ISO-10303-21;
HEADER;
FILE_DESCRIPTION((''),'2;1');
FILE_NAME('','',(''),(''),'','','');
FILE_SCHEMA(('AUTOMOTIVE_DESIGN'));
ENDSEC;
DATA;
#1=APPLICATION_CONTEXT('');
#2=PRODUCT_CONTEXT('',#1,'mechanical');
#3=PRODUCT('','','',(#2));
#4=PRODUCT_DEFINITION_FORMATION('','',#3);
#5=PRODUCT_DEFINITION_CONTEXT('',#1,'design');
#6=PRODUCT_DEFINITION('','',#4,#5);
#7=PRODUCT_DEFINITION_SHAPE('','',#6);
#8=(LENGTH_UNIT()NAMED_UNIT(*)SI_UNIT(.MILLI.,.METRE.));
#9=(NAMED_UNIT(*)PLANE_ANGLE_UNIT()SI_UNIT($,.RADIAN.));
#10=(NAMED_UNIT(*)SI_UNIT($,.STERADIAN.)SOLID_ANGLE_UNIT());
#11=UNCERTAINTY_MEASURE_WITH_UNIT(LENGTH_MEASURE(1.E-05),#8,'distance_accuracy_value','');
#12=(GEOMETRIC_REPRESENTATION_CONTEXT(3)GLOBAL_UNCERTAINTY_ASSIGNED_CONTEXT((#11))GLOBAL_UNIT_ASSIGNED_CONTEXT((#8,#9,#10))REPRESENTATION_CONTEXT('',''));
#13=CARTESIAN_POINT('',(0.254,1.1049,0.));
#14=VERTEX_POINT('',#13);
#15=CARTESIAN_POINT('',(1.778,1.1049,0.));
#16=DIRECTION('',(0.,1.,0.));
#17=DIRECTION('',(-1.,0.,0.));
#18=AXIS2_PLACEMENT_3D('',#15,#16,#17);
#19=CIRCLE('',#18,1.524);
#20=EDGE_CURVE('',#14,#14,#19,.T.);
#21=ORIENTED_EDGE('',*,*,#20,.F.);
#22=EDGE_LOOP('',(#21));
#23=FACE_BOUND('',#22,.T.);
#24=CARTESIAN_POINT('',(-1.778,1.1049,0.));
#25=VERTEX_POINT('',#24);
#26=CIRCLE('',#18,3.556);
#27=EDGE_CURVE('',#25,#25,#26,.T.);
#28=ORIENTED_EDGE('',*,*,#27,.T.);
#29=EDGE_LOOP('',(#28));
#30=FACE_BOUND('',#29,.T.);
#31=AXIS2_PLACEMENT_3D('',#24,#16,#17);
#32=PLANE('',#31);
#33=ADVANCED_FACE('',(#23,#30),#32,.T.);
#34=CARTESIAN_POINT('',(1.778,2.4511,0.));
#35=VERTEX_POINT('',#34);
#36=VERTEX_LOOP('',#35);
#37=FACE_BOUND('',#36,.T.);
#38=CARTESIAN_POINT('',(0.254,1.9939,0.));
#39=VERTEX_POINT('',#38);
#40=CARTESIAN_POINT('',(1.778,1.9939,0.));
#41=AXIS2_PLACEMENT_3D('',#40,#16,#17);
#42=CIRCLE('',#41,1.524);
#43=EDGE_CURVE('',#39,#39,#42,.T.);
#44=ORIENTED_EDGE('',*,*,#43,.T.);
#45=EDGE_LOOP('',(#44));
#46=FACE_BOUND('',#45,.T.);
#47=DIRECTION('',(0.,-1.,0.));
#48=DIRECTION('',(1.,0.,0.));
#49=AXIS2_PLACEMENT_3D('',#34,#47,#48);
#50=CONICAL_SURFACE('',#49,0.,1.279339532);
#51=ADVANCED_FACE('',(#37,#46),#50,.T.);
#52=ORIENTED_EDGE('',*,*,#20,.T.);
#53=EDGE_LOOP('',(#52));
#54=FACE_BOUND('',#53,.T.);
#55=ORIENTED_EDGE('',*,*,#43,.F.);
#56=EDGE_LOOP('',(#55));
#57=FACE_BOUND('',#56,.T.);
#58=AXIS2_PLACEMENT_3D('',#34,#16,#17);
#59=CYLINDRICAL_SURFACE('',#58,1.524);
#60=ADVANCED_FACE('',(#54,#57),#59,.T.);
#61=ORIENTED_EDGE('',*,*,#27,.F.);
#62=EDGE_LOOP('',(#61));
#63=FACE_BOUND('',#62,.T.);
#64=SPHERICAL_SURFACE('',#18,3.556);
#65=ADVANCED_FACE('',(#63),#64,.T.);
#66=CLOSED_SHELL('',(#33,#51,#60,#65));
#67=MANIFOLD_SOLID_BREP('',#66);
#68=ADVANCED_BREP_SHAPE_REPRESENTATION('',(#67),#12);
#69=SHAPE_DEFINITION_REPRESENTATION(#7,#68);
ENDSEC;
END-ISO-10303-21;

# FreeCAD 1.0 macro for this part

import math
import FreeCAD as App
import Part
import Sketcher

V = App.Vector
Q = App.Units.Quantity

doc = App.newDocument("Part")
body = doc.addObject("PartDesign::Body", "Body")

# Sketch on XY plane
sketch1 = body.newObject("Sketcher::SketchObject", "Sketch")
sketch1.AttachmentSupport = (doc.getObject("XY_Plane"), [""])
sketch1.MapMode = "FlatFace"
sketch1.addGeometry([
    Part.LineSegment(V(0.3, 1.1, 0), V(-1.8, 1.1, 0)),  # 0
    Part.ArcOfCircle(Part.Circle(V(1.8, 1.1, 0), V(0, 0, 1), 3.6), math.radians(180), math.radians(270)),  # 1
    Part.LineSegment(V(1.8, -2.5, 0), V(1.8, 2.5, 0)),  # 2
    Part.LineSegment(V(1.8, 2.5, 0), V(0.3, 2, 0)),  # 3
    Part.LineSegment(V(0.3, 2, 0), V(0.3, 1.1, 0)),  # 4
], False)
sketch1.addGeometry(Part.LineSegment(V(1.8, 2.5, 0), V(1.8, -2.5, 0)), True)  # axis
sketch1.addConstraint([
    Sketcher.Constraint("Coincident", 0, 2, 1, 1),
    Sketcher.Constraint("Coincident", 1, 2, 2, 1),
    Sketcher.Constraint("Coincident", 2, 2, 3, 1),
    Sketcher.Constraint("Coincident", 3, 2, 4, 1),
    Sketcher.Constraint("Coincident", 4, 2, 0, 1),
    Sketcher.Constraint("Horizontal", 0),
    Sketcher.Constraint("Vertical", 2),
    Sketcher.Constraint("Vertical", 4),
    Sketcher.Constraint("Vertical", 5),
    Sketcher.Constraint("Coincident", 5, 1, 2, 2),
    Sketcher.Constraint("Horizontal", 1, 3, 0, 2),
    Sketcher.Constraint("Equal", 2, 5),
    Sketcher.Constraint("Radius", 1, Q("0.14 in")),
    Sketcher.Constraint("DistanceX", 0, 2, 0, 1, Q("0.08 in")),
    Sketcher.Constraint("DistanceY", 2, 1, 2, 2, Q("0.193 in")),
    Sketcher.Constraint("DistanceY", 4, 2, 4, 1, Q("0.035 in")),
    Sketcher.Constraint("DistanceX", -1, 1, 1, 3, Q("0.07 in")),
    Sketcher.Constraint("DistanceX", -1, 1, 1, 2, Q("0.07 in")),
    Sketcher.Constraint("DistanceY", -1, 1, 1, 3, Q("0.0435 in")),
])
revolution = body.newObject("PartDesign::Revolution", "Revolution")
revolution.Profile = sketch1
revolution.ReferenceAxis = (sketch1, ["Axis0"])
revolution.Angle = 360

doc.recompute()
